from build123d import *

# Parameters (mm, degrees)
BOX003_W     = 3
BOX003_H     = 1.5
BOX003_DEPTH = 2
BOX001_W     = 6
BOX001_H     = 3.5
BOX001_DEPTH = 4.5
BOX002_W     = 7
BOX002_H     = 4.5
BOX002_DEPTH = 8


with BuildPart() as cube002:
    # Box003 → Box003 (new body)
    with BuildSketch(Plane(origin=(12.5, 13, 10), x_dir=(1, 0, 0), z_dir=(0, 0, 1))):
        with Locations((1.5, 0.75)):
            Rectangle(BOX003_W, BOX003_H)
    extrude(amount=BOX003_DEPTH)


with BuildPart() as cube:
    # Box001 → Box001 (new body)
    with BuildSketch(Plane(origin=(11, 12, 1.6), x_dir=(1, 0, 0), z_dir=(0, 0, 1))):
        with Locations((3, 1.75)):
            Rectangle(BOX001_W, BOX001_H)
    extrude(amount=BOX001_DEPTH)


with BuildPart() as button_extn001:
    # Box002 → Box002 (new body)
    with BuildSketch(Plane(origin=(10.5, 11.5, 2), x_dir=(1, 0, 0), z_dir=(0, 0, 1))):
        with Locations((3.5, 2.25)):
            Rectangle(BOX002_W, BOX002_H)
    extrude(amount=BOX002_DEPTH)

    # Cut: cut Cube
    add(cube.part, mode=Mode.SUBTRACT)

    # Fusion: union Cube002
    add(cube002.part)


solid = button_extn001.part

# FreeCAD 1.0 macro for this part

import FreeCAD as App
import Part
import Sketcher
from FreeCAD import Vector
Q = App.Units.Quantity


def add_polygon(sketch, points):
    """Adds a closed chain of lines whose ends are joined by coincident constraints."""
    first, n = sketch.GeometryCount, len(points)
    for a, b in zip(points, points[1:] + points[:1]):
        sketch.addGeometry(Part.LineSegment(App.Vector(*a, 0), App.Vector(*b, 0)), False)
    for i in range(n):
        sketch.addConstraint(Sketcher.Constraint("Coincident", first + i, 2, first + (i + 1) % n, 1))

doc = App.newDocument("Part")
body = doc.addObject("PartDesign::Body", "Body")

# Sketch on XY plane
sketch1 = body.newObject("Sketcher::SketchObject", "Sketch")
sketch1.AttachmentSupport = (doc.getObject("XY_Plane"), [""])
sketch1.MapMode = "FlatFace"
sketch1.AttachmentOffset = App.Placement(Vector(0, 0, 10), App.Rotation())
add_polygon(sketch1, [(12.5, 14.5), (12.5, 13), (15.5, 13), (15.5, 14.5)])  # lines 0-3
sketch1.addConstraint([
    Sketcher.Constraint("Vertical", 0),
    Sketcher.Constraint("Horizontal", 1),
    Sketcher.Constraint("Vertical", 2),
    Sketcher.Constraint("Horizontal", 3),
    Sketcher.Constraint("DistanceX", 1, 1, 1, 2, Q("3 mm")),
    Sketcher.Constraint("DistanceY", 0, 2, 0, 1, Q("1.5 mm")),
    Sketcher.Constraint("DistanceY", -1, 1, 0, 2, Q("13 mm")),
    Sketcher.Constraint("DistanceX", -1, 1, 0, 2, Q("12.5 mm")),
])
pad1 = body.newObject("PartDesign::Pad", "Pad")
pad1.Profile = sketch1
pad1.Length = 2
body2 = doc.addObject("PartDesign::Body", "Body001")

# Sketch on XY plane
sketch2 = body2.newObject("Sketcher::SketchObject", "Sketch001")
sketch2.AttachmentSupport = (doc.getObject("XY_Plane001"), [""])
sketch2.MapMode = "FlatFace"
sketch2.AttachmentOffset = App.Placement(Vector(0, 0, 1.6), App.Rotation())
add_polygon(sketch2, [(11, 15.5), (11, 12), (17, 12), (17, 15.5)])  # lines 0-3
sketch2.addConstraint([
    Sketcher.Constraint("Vertical", 0),
    Sketcher.Constraint("Horizontal", 1),
    Sketcher.Constraint("Vertical", 2),
    Sketcher.Constraint("Horizontal", 3),
    Sketcher.Constraint("DistanceX", 1, 1, 1, 2, Q("6 mm")),
    Sketcher.Constraint("DistanceY", 0, 2, 0, 1, Q("3.5 mm")),
    Sketcher.Constraint("DistanceX", -1, 1, 0, 2, Q("11 mm")),
    Sketcher.Constraint("DistanceY", -1, 1, 0, 2, Q("12 mm")),
])
pad2 = body2.newObject("PartDesign::Pad", "Pad001")
pad2.Profile = sketch2
pad2.Length = 4.5
body3 = doc.addObject("PartDesign::Body", "Body002")

# Sketch on XY plane
sketch3 = body3.newObject("Sketcher::SketchObject", "Sketch002")
sketch3.AttachmentSupport = (doc.getObject("XY_Plane002"), [""])
sketch3.MapMode = "FlatFace"
sketch3.AttachmentOffset = App.Placement(Vector(0, 0, 2), App.Rotation())
add_polygon(sketch3, [(10.5, 16), (10.5, 11.5), (17.5, 11.5), (17.5, 16)])  # lines 0-3
sketch3.addConstraint([
    Sketcher.Constraint("Vertical", 0),
    Sketcher.Constraint("Horizontal", 1),
    Sketcher.Constraint("Vertical", 2),
    Sketcher.Constraint("Horizontal", 3),
    Sketcher.Constraint("DistanceX", 1, 1, 1, 2, Q("7 mm")),
    Sketcher.Constraint("DistanceY", 0, 2, 0, 1, Q("4.5 mm")),
    Sketcher.Constraint("DistanceY", -1, 1, 2, 2, Q("16 mm")),
    Sketcher.Constraint("DistanceX", -1, 1, 0, 2, Q("10.5 mm")),
])
pad3 = body3.newObject("PartDesign::Pad", "Pad002")
pad3.Profile = sketch3
pad3.Length = 8
doc.recompute()

boolean = body3.newObject("PartDesign::Boolean", "Boolean")
boolean.Type = "Cut"
boolean.addObjects([body2])
doc.recompute()

boolean2 = body3.newObject("PartDesign::Boolean", "Boolean001")
boolean2.Type = "Fuse"
boolean2.addObjects([body])

doc.recompute()
